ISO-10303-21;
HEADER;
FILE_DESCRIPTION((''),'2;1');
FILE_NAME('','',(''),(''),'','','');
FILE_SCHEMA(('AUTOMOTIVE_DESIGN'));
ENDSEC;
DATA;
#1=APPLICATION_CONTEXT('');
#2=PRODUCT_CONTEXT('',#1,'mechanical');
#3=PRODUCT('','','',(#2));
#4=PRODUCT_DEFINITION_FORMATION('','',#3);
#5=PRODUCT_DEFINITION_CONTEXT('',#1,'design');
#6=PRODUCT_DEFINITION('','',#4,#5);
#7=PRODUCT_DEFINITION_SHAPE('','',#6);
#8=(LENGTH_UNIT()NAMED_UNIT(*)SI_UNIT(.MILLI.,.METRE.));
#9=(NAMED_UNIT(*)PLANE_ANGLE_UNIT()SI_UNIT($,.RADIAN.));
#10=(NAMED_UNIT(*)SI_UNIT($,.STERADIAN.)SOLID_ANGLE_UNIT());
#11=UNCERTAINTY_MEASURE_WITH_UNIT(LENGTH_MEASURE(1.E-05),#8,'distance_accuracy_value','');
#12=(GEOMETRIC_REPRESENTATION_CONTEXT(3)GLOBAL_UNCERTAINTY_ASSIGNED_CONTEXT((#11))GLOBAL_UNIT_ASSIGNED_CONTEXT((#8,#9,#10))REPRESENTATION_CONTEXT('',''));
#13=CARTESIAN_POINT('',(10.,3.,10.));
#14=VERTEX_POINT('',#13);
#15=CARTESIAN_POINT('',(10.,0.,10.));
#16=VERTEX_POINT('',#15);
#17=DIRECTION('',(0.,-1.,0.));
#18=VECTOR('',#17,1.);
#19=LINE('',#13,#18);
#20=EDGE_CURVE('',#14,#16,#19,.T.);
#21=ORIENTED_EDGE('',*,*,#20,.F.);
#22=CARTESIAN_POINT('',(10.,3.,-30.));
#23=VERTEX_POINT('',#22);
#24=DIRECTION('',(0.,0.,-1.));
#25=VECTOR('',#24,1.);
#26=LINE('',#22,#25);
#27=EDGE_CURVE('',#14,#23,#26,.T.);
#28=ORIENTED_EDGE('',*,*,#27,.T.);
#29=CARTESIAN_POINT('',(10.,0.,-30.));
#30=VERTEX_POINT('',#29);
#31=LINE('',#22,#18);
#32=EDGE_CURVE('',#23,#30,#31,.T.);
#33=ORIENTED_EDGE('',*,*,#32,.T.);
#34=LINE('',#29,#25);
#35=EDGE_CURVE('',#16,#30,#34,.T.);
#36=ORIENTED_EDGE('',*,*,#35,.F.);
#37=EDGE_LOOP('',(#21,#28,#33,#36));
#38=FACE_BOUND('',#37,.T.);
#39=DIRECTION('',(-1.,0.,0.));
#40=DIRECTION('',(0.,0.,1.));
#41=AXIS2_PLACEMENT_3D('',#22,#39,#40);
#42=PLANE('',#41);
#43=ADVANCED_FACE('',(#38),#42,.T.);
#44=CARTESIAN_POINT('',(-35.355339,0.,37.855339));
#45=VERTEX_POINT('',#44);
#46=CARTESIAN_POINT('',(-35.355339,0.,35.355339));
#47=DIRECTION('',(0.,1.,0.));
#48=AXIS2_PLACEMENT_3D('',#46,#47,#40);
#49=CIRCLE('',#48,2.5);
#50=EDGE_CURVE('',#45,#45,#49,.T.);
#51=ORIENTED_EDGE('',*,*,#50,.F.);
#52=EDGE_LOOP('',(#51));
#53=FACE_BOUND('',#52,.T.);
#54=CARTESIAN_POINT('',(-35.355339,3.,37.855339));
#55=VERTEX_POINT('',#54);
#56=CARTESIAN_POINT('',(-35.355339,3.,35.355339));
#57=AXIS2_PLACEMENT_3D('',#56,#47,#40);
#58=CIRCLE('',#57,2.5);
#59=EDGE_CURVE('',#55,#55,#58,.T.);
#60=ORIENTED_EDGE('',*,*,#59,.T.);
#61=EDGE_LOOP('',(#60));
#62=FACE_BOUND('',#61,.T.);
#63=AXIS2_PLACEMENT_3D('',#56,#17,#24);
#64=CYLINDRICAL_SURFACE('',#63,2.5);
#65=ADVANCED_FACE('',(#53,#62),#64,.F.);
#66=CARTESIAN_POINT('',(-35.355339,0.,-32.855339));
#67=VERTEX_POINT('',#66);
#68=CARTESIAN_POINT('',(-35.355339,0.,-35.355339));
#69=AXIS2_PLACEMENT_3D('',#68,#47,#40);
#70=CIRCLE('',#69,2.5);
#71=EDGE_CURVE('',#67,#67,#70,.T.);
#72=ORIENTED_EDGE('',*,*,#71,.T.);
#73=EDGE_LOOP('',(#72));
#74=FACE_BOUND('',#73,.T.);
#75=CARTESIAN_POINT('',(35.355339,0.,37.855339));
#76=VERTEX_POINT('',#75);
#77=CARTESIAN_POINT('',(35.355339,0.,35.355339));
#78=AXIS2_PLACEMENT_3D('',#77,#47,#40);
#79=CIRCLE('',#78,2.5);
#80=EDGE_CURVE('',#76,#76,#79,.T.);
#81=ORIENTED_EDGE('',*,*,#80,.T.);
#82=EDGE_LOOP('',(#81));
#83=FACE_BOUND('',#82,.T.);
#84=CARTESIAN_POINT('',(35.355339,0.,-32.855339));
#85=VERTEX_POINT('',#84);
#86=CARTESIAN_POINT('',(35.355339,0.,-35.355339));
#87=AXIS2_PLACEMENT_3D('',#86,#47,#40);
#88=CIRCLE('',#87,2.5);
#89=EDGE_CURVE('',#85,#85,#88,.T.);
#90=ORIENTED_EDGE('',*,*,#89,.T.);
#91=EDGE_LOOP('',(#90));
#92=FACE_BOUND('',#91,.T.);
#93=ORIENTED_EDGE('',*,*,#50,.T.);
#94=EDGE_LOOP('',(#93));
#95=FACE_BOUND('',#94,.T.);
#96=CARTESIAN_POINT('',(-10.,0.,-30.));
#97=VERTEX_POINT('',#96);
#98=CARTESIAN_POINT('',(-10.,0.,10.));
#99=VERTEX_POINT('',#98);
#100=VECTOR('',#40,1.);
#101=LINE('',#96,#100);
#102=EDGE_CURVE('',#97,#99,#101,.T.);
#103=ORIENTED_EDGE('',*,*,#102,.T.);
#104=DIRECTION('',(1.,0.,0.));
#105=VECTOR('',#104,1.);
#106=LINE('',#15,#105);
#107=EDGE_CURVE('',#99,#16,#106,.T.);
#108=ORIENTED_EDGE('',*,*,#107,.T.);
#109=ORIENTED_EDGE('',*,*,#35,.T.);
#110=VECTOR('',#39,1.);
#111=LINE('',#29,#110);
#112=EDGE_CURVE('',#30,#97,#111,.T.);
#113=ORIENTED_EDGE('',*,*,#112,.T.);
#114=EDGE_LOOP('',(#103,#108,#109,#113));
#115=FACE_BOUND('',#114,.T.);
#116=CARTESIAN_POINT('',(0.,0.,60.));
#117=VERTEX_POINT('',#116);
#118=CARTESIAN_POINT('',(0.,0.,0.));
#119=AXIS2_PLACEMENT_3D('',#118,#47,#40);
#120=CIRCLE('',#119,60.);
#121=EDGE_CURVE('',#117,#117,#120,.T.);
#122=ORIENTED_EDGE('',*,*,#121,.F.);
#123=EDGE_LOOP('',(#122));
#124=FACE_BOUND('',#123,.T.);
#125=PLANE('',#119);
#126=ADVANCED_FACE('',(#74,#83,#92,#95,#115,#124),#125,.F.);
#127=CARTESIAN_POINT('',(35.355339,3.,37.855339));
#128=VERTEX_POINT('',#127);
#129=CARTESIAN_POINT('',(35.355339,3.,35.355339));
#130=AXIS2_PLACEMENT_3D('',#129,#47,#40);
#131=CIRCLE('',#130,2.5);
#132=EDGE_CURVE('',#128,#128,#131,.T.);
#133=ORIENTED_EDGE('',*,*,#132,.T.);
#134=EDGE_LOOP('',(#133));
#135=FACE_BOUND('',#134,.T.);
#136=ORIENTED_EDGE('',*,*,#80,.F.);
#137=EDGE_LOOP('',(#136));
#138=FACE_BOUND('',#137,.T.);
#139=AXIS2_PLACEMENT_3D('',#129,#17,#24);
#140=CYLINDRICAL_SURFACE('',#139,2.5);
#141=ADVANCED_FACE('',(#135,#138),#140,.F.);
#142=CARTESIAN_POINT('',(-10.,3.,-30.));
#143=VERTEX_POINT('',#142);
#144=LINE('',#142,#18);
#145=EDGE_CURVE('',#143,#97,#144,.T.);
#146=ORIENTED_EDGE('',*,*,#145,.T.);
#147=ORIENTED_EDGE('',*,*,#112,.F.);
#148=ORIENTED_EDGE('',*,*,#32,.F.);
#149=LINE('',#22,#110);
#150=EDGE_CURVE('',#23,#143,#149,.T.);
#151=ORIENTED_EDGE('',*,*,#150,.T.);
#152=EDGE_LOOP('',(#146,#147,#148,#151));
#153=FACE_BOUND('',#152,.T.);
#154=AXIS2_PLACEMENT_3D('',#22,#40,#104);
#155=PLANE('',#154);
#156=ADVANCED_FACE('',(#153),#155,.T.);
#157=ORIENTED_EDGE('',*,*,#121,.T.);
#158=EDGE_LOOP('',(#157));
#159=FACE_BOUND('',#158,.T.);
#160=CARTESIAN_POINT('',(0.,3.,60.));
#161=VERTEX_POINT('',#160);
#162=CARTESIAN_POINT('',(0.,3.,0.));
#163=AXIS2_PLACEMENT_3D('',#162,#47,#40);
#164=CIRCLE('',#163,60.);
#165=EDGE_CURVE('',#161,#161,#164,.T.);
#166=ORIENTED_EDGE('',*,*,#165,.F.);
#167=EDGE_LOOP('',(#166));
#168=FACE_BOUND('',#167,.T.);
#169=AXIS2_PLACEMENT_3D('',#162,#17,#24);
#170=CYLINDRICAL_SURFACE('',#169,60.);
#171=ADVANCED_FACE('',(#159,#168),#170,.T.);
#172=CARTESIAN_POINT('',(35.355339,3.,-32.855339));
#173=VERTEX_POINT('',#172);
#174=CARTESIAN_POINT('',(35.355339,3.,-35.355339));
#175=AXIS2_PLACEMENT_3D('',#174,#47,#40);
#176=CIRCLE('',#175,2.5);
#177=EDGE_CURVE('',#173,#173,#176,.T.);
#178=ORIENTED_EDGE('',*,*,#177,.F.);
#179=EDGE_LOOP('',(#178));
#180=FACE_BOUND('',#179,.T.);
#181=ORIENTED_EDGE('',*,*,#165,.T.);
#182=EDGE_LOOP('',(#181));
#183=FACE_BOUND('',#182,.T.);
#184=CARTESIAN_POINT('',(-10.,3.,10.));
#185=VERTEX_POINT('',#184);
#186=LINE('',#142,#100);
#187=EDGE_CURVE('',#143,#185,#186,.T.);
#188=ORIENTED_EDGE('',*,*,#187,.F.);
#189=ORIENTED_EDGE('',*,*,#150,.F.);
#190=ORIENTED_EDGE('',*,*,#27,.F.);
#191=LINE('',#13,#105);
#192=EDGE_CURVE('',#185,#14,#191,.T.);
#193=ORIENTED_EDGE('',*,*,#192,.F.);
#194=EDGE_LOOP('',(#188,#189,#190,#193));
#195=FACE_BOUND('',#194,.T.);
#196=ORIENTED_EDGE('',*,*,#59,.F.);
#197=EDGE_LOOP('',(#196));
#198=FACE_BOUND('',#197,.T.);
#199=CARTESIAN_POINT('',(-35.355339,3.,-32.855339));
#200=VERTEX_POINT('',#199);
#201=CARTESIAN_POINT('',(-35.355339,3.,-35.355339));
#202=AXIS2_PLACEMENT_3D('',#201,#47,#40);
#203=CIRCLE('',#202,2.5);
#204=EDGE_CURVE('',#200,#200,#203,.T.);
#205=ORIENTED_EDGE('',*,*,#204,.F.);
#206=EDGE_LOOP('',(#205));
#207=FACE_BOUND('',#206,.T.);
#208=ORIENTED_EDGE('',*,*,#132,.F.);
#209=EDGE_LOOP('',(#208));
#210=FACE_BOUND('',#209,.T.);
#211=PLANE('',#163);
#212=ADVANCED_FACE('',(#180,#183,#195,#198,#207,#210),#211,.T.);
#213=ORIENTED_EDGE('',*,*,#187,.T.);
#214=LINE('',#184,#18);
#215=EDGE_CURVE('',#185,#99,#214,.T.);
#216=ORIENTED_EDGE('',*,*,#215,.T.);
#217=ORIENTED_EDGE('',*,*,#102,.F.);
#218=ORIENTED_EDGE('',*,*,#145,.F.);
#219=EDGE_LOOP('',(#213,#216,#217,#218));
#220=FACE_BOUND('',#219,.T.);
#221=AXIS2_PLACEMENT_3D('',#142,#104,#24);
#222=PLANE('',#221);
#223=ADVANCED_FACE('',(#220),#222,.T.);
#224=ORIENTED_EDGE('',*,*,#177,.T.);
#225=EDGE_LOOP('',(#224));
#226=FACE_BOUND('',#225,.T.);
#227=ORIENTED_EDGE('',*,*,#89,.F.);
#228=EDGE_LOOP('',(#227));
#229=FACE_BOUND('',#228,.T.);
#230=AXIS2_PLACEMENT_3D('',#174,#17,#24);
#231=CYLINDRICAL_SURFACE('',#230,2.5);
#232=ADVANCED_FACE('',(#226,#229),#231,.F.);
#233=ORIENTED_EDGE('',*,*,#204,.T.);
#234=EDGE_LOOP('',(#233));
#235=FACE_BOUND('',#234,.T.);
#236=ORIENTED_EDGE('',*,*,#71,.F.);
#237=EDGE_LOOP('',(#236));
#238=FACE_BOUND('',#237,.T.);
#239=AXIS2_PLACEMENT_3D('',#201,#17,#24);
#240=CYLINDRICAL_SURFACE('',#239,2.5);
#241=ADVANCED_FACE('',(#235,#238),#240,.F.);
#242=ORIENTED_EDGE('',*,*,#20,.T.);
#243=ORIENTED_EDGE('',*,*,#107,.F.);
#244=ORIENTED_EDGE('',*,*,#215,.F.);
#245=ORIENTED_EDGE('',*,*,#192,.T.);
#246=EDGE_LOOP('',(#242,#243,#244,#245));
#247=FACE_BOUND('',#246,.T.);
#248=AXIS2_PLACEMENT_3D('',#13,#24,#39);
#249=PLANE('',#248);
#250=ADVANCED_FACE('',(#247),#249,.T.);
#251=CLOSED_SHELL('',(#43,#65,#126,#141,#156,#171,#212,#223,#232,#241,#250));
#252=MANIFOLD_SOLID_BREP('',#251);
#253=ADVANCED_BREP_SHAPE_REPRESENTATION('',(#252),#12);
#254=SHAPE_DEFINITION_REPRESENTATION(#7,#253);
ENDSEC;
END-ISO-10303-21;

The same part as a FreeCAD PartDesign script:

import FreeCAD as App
import Part
import Sketcher
from FreeCAD import Vector
Q = App.Units.Quantity


def add_polygon(sketch, points):
    """Adds a closed chain of lines whose ends are joined by coincident constraints."""
    first, n = sketch.GeometryCount, len(points)
    for a, b in zip(points, points[1:] + points[:1]):
        sketch.addGeometry(Part.LineSegment(App.Vector(*a, 0), App.Vector(*b, 0)), False)
    for i in range(n):
        sketch.addConstraint(Sketcher.Constraint("Coincident", first + i, 2, first + (i + 1) % n, 1))

doc = App.newDocument("Part")
body = doc.addObject("PartDesign::Body", "Body")

# Sketch on XZ plane
sketch1 = body.newObject("Sketcher::SketchObject", "Sketch")
sketch1.AttachmentSupport = (doc.getObject("XZ_Plane"), [""])
sketch1.MapMode = "FlatFace"
sketch1.addGeometry(Part.Circle(Vector(0, 0, 0), Vector(0, 0, 1), 60), False)  # 0
sketch1.addGeometry(Part.Circle(Vector(-35.355339, -35.355339, 0), Vector(0, 0, 1), 2.5), False)  # 1
sketch1.addGeometry(Part.Circle(Vector(-35.355339, 35.355339, 0), Vector(0, 0, 1), 2.5), False)  # 2
add_polygon(sketch1, [(10, 10), (-10, 10), (-10, -30), (10, -30)])  # lines 3-6
sketch1.addGeometry(Part.Circle(Vector(35.355339, -35.355339, 0), Vector(0, 0, 1), 2.5), False)  # 7
sketch1.addGeometry(Part.Circle(Vector(35.355339, 35.355339, 0), Vector(0, 0, 1), 2.5), False)  # 8
sketch1.addConstraint(Sketcher.Constraint("Horizontal", 3))
sketch1.addConstraint(Sketcher.Constraint("Vertical", 4))
sketch1.addConstraint(Sketcher.Constraint("Horizontal", 5))
sketch1.addConstraint(Sketcher.Constraint("Vertical", 6))
sketch1.addConstraint(Sketcher.Constraint("Coincident", 0, 3, -1, 1))
sketch1.addConstraint(Sketcher.Constraint("Equal", 1, 2))
sketch1.addConstraint(Sketcher.Constraint("Equal", 2, 7))
sketch1.addConstraint(Sketcher.Constraint("Equal", 7, 8))
sketch1.addConstraint(Sketcher.Constraint("Symmetric", 2, 3, 7, 3, -1, 1))
sketch1.addConstraint(Sketcher.Constraint("Symmetric", 1, 3, 8, 3, -1, 1))
sketch1.addConstraint(Sketcher.Constraint("Symmetric", 1, 3, 7, 3, -2))
sketch1.addConstraint(Sketcher.Constraint("Diameter", 0, Q("120 mm")))
sketch1.addConstraint(Sketcher.Constraint("Diameter", 1, Q("5 mm")))
sketch1.addConstraint(Sketcher.Constraint("DistanceX", 3, 2, 3, 1, Q("20 mm")))
sketch1.addConstraint(Sketcher.Constraint("DistanceY", 4, 2, 4, 1, Q("40 mm")))
sketch1.addConstraint(Sketcher.Constraint("DistanceX", 3, 2, -1, 1, Q("10 mm")))
sketch1.addConstraint(Sketcher.Constraint("DistanceY", -1, 1, 3, 2, Q("10 mm")))
sketch1.addConstraint(Sketcher.Constraint("DistanceX", 1, 3, -1, 1, Q("35.355339 mm")))
sketch1.addConstraint(Sketcher.Constraint("DistanceY", 1, 3, -1, 1, Q("35.355339 mm")))
pad1 = body.newObject("PartDesign::Pad", "Pad")
pad1.Profile = sketch1
pad1.Length = 3
pad1.Reversed = True

doc.recompute()
